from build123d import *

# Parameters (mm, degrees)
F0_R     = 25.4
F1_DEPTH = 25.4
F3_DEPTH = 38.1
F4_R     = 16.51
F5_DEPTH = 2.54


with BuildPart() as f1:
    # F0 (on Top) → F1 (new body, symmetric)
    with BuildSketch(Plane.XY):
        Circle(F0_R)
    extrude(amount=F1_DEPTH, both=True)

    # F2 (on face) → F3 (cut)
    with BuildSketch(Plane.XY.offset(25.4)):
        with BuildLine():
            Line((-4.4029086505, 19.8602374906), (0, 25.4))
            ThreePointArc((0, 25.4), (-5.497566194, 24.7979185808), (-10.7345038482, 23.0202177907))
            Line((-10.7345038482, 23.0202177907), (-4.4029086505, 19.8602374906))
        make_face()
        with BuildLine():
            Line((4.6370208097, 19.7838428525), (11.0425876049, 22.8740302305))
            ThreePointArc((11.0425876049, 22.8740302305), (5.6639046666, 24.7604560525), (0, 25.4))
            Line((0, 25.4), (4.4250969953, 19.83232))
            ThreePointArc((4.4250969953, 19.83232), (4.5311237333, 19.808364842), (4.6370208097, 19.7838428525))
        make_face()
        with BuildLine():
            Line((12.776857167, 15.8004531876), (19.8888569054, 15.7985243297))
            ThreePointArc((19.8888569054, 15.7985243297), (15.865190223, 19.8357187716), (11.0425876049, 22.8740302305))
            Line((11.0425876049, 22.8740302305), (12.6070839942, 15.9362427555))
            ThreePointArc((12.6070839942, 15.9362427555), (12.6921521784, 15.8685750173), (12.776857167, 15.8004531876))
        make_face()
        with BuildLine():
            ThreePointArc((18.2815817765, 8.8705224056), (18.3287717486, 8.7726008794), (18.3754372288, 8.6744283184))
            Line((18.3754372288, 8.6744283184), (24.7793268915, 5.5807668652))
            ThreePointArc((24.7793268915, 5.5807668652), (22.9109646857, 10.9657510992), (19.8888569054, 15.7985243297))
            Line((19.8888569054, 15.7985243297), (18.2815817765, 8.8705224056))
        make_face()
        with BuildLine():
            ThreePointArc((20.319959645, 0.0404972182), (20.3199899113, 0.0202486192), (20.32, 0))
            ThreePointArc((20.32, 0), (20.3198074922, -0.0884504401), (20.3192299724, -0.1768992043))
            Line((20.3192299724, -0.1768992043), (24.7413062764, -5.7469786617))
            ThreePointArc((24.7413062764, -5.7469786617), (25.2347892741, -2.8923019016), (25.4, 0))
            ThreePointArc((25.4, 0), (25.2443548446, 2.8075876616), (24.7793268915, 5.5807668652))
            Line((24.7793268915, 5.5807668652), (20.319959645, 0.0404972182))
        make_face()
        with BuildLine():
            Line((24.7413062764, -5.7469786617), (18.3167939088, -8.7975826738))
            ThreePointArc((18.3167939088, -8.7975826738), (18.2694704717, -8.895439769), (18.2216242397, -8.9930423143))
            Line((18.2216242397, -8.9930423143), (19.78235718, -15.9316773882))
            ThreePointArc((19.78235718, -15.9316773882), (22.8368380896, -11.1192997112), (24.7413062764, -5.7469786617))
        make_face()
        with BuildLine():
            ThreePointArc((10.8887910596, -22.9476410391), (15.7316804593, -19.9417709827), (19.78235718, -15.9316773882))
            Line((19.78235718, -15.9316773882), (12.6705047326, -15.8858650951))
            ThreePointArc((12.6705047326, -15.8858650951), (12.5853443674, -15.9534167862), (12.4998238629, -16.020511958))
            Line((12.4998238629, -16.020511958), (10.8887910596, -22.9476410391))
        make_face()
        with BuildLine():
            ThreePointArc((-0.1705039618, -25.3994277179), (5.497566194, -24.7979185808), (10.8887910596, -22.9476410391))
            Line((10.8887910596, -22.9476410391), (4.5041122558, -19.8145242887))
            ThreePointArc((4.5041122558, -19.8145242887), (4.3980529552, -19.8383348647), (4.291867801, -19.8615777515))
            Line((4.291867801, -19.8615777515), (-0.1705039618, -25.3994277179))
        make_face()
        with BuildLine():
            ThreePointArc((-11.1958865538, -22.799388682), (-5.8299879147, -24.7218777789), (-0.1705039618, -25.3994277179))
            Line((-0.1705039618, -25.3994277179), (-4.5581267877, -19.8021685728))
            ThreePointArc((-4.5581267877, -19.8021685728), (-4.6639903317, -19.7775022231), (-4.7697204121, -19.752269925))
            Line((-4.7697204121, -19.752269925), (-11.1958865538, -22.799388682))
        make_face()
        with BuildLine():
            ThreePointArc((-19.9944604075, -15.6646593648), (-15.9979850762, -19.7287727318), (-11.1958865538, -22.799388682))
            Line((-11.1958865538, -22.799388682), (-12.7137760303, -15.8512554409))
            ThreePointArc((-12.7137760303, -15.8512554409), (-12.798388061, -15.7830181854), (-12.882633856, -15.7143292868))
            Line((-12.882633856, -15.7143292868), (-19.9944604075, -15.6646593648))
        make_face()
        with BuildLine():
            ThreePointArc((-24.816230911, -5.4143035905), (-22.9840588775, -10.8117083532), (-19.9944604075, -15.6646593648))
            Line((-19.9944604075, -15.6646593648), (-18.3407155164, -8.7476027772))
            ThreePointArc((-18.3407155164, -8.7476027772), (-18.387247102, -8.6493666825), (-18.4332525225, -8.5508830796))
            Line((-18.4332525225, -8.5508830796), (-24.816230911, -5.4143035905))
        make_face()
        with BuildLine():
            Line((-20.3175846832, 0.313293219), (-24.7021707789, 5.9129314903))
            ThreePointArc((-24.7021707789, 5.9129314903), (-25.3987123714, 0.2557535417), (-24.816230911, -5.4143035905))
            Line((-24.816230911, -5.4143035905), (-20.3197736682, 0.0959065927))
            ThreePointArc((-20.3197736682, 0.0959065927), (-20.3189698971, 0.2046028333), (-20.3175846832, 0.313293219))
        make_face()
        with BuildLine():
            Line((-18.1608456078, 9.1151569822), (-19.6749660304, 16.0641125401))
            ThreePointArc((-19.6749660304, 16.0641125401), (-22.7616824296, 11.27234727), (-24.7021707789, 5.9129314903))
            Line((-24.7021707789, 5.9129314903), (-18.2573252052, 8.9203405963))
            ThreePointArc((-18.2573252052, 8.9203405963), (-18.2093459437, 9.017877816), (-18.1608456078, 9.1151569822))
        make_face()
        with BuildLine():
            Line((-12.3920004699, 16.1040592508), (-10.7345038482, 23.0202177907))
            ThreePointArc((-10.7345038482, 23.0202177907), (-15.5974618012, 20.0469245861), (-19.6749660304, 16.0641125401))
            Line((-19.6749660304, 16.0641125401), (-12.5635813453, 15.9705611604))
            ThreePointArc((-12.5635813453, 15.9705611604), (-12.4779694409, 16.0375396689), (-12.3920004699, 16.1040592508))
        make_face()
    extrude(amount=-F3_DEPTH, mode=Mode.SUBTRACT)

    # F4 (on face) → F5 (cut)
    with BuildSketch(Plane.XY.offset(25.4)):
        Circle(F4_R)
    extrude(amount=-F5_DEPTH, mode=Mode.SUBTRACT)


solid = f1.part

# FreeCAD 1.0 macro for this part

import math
import FreeCAD as App
import Part
import Sketcher
Q = App.Units.Quantity

doc = App.newDocument("Part")
params = doc.addObject("Spreadsheet::Sheet", "Params")
for row, (alias, value) in enumerate([
    ("sketch1_diameter", "2 in"),
    ("pad1_length", "2 in"),
    ("sketch2_radius", "1 in"),
    ("sketch2_radius2", "0.8000001 in"),
    ("sketch2_radius3", "0.7999999 in"),
    ("sketch2_length", "0.28 in"),
    ("pocket1_length", "1.5 in"),
    ("sketch3_diameter", "1.3 in"),
    ("pocket2_length", "0.1 in"),
], start=1):
    params.set(f"A{row}", alias)
    params.set(f"B{row}", "=" + value)
    params.setAlias(f"B{row}", alias)

body = doc.addObject("PartDesign::Body", "Body")

# Sketch on XY plane
sketch1 = doc.addObject("Sketcher::SketchObject", "Sketch")
body.addObject(sketch1)
sketch1.AttachmentSupport = (doc.XY_Plane, [""])
sketch1.MapMode = "FlatFace"
sketch1.addGeometry(Part.Circle(App.Vector(0, 0, 0), App.Vector(0, 0, 1), 25), False)
sketch1.addConstraint([
    Sketcher.Constraint("Coincident", 0, 3, -1, 1),
    Sketcher.Constraint("Diameter", 0, Q("2 in")),
])
sketch1.setExpression("Constraints[1]", "Params.sketch1_diameter")
pad1 = doc.addObject("PartDesign::Pad", "Pad")
body.addObject(pad1)
pad1.Profile = sketch1
pad1.setExpression("Length", "Params.pad1_length")
pad1.Midplane = True

# Sketch on XY plane
sketch2 = doc.addObject("Sketcher::SketchObject", "Sketch001")
body.addObject(sketch2)
sketch2.AttachmentSupport = (doc.XY_Plane, [""])
sketch2.MapMode = "FlatFace"
sketch2.AttachmentOffset = App.Placement(App.Vector(0, 0, 1 * 25.4), App.Rotation())
sketch2.addGeometry([
    Part.LineSegment(App.Vector(-4.403, 19.86, 0), App.Vector(0, 25.4, 0)),  # 0
    Part.ArcOfCircle(Part.Circle(App.Vector(0, 0, 0), App.Vector(0, 0, 1), 25.4), math.radians(90), math.radians(115)),  # 1
    Part.LineSegment(App.Vector(-10.735, 23.02, 0), App.Vector(-4.403, 19.86, 0)),  # 2
    Part.LineSegment(App.Vector(4.637, 19.784, 0), App.Vector(11.043, 22.874, 0)),  # 3
    Part.ArcOfCircle(Part.Circle(App.Vector(0, 0, 0), App.Vector(0, 0, 1), 25.4), math.radians(64), math.radians(90)),  # 4
    Part.LineSegment(App.Vector(0, 25.4, 0), App.Vector(4.425, 19.832, 0)),  # 5
    Part.ArcOfCircle(Part.Circle(App.Vector(0, 0, 0), App.Vector(0, 0, 1), 20.32), math.radians(76.81), math.radians(77.42)),  # 6
    Part.LineSegment(App.Vector(12.777, 15.8, 0), App.Vector(19.889, 15.799, 0)),  # 7
    Part.ArcOfCircle(Part.Circle(App.Vector(0, 0, 0), App.Vector(0, 0, 1), 25.4), math.radians(38), math.radians(64)),  # 8
    Part.LineSegment(App.Vector(11.043, 22.874, 0), App.Vector(12.607, 15.936, 0)),  # 9
    Part.ArcOfCircle(Part.Circle(App.Vector(0, 0, 0), App.Vector(0, 0, 1), 20.32), math.radians(51.04), math.radians(51.65)),  # 10
    Part.ArcOfCircle(Part.Circle(App.Vector(0, 0, 0), App.Vector(0, 0, 1), 20.32), math.radians(25.27), math.radians(25.88)),  # 11
    Part.LineSegment(App.Vector(18.375, 8.674, 0), App.Vector(24.779, 5.581, 0)),  # 12
    Part.ArcOfCircle(Part.Circle(App.Vector(0, 0, 0), App.Vector(0, 0, 1), 25.4), math.radians(13), math.radians(38)),  # 13
    Part.LineSegment(App.Vector(19.889, 15.799, 0), App.Vector(18.282, 8.871, 0)),  # 14
    Part.ArcOfCircle(Part.Circle(App.Vector(0, 0, 0), App.Vector(0, 0, 1), 20.32), math.radians(0), math.radians(0.11)),  # 15
    Part.ArcOfCircle(Part.Circle(App.Vector(0, 0, 0), App.Vector(0, 0, 1), 20.32), math.radians(-0.5), math.radians(0)),  # 16
    Part.LineSegment(App.Vector(20.319, -0.177, 0), App.Vector(24.741, -5.747, 0)),  # 17
    Part.ArcOfCircle(Part.Circle(App.Vector(0, 0, 0), App.Vector(0, 0, 1), 25.4), math.radians(-13.08), math.radians(0)),  # 18
    Part.ArcOfCircle(Part.Circle(App.Vector(0, 0, 0), App.Vector(0, 0, 1), 25.4), math.radians(0), math.radians(12.69)),  # 19
    Part.LineSegment(App.Vector(24.779, 5.581, 0), App.Vector(20.32, 0.04, 0)),  # 20
    Part.LineSegment(App.Vector(24.741, -5.747, 0), App.Vector(18.317, -8.798, 0)),  # 21
    Part.ArcOfCircle(Part.Circle(App.Vector(0, 0, 0), App.Vector(0, 0, 1), 20.32), math.radians(-26.27), math.radians(-25.66)),  # 22
    Part.LineSegment(App.Vector(18.222, -8.993, 0), App.Vector(19.782, -15.932, 0)),  # 23
    Part.ArcOfCircle(Part.Circle(App.Vector(0, 0, 0), App.Vector(0, 0, 1), 25.4), math.radians(-39), math.radians(-13)),  # 24
    Part.ArcOfCircle(Part.Circle(App.Vector(0, 0, 0), App.Vector(0, 0, 1), 25.4), math.radians(-65), math.radians(-39)),  # 25
    Part.LineSegment(App.Vector(19.782, -15.932, 0), App.Vector(12.671, -15.886, 0)),  # 26
    Part.ArcOfCircle(Part.Circle(App.Vector(0, 0, 0), App.Vector(0, 0, 1), 20.32), math.radians(-52.04), math.radians(-51.42)),  # 27
    Part.LineSegment(App.Vector(12.5, -16.021, 0), App.Vector(10.889, -22.948, 0)),  # 28
    Part.ArcOfCircle(Part.Circle(App.Vector(0, 0, 0), App.Vector(0, 0, 1), 25.4), math.radians(-90), math.radians(-65)),  # 29
    Part.LineSegment(App.Vector(10.889, -22.948, 0), App.Vector(4.504, -19.815, 0)),  # 30
    Part.ArcOfCircle(Part.Circle(App.Vector(0, 0, 0), App.Vector(0, 0, 1), 20.32), math.radians(-77.81), math.radians(-77.19)),  # 31
    Part.LineSegment(App.Vector(4.292, -19.862, 0), App.Vector(-0.171, -25.399, 0)),  # 32
    Part.ArcOfCircle(Part.Circle(App.Vector(0, 0, 0), App.Vector(0, 0, 1), 25.4), math.radians(-116), math.radians(-90)),  # 33
    Part.LineSegment(App.Vector(-0.171, -25.399, 0), App.Vector(-4.558, -19.802, 0)),  # 34
    Part.ArcOfCircle(Part.Circle(App.Vector(0, 0, 0), App.Vector(0, 0, 1), 20.32), math.radians(-103.58), math.radians(-102.96)),  # 35
    Part.LineSegment(App.Vector(-4.77, -19.752, 0), App.Vector(-11.196, -22.799, 0)),  # 36
    Part.ArcOfCircle(Part.Circle(App.Vector(0, 0, 0), App.Vector(0, 0, 1), 25.4), math.radians(-142), math.radians(-116)),  # 37
    Part.LineSegment(App.Vector(-11.196, -22.799, 0), App.Vector(-12.714, -15.851, 0)),  # 38
    Part.ArcOfCircle(Part.Circle(App.Vector(0, 0, 0), App.Vector(0, 0, 1), 20.32), math.radians(-129.34), math.radians(-128.73)),  # 39
    Part.LineSegment(App.Vector(-12.883, -15.714, 0), App.Vector(-19.994, -15.665, 0)),  # 40
    Part.ArcOfCircle(Part.Circle(App.Vector(0, 0, 0), App.Vector(0, 0, 1), 25.4), math.radians(-168), math.radians(-142)),  # 41
    Part.LineSegment(App.Vector(-19.994, -15.665, 0), App.Vector(-18.341, -8.748, 0)),  # 42
    Part.ArcOfCircle(Part.Circle(App.Vector(0, 0, 0), App.Vector(0, 0, 1), 20.32), math.radians(-155.11), math.radians(-154.5)),  # 43
    Part.LineSegment(App.Vector(-18.433, -8.551, 0), App.Vector(-24.816, -5.414, 0)),  # 44
    Part.LineSegment(App.Vector(-20.318, 0.313, 0), App.Vector(-24.702, 5.913, 0)),  # 45
    Part.ArcOfCircle(Part.Circle(App.Vector(0, 0, 0), App.Vector(0, 0, 1), 25.4), math.radians(167), math.radians(192)),  # 46
    Part.LineSegment(App.Vector(-24.816, -5.414, 0), App.Vector(-20.32, 0.096, 0)),  # 47
    Part.ArcOfCircle(Part.Circle(App.Vector(0, 0, 0), App.Vector(0, 0, 1), 20.32), math.radians(179.12), math.radians(179.73)),  # 48
    Part.LineSegment(App.Vector(-18.161, 9.115, 0), App.Vector(-19.675, 16.064, 0)),  # 49
    Part.ArcOfCircle(Part.Circle(App.Vector(0, 0, 0), App.Vector(0, 0, 1), 25.4), math.radians(141), math.radians(167)),  # 50
    Part.LineSegment(App.Vector(-24.702, 5.913, 0), App.Vector(-18.257, 8.92, 0)),  # 51
    Part.ArcOfCircle(Part.Circle(App.Vector(0, 0, 0), App.Vector(0, 0, 1), 20.32), math.radians(153.35), math.radians(153.96)),  # 52
    Part.LineSegment(App.Vector(-12.392, 16.104, 0), App.Vector(-10.735, 23.02, 0)),  # 53
    Part.ArcOfCircle(Part.Circle(App.Vector(0, 0, 0), App.Vector(0, 0, 1), 25.4), math.radians(115), math.radians(141)),  # 54
    Part.LineSegment(App.Vector(-19.675, 16.064, 0), App.Vector(-12.564, 15.971, 0)),  # 55
    Part.ArcOfCircle(Part.Circle(App.Vector(0, 0, 0), App.Vector(0, 0, 1), 20.32), math.radians(127.58), math.radians(128.19)),  # 56
], False)
sketch2.addConstraint([
    Sketcher.Constraint("Coincident", 0, 2, 1, 1),
    Sketcher.Constraint("Coincident", 1, 2, 2, 1),
    Sketcher.Constraint("Coincident", 2, 2, 0, 1),
    Sketcher.Constraint("Coincident", 3, 2, 4, 1),
    Sketcher.Constraint("Coincident", 4, 2, 5, 1),
    Sketcher.Constraint("Coincident", 5, 2, 6, 2),
    Sketcher.Constraint("Coincident", 6, 1, 3, 1),
    Sketcher.Constraint("Coincident", 7, 2, 8, 1),
    Sketcher.Constraint("Coincident", 8, 2, 9, 1),
    Sketcher.Constraint("Coincident", 9, 2, 10, 2),
    Sketcher.Constraint("Coincident", 10, 1, 7, 1),
    Sketcher.Constraint("Coincident", 11, 1, 12, 1),
    Sketcher.Constraint("Coincident", 12, 2, 13, 1),
    Sketcher.Constraint("Coincident", 13, 2, 14, 1),
    Sketcher.Constraint("Coincident", 14, 2, 11, 2),
    Sketcher.Constraint("Tangent", 15, 1, 16, 2),
    Sketcher.Constraint("Coincident", 16, 1, 17, 1),
    Sketcher.Constraint("Coincident", 17, 2, 18, 1),
    Sketcher.Constraint("Tangent", 18, 2, 19, 1),
    Sketcher.Constraint("Coincident", 19, 2, 20, 1),
    Sketcher.Constraint("Coincident", 20, 2, 15, 2),
    Sketcher.Constraint("Coincident", 21, 2, 22, 2),
    Sketcher.Constraint("Coincident", 22, 1, 23, 1),
    Sketcher.Constraint("Coincident", 23, 2, 24, 1),
    Sketcher.Constraint("Coincident", 24, 2, 21, 1),
    Sketcher.Constraint("Coincident", 25, 2, 26, 1),
    Sketcher.Constraint("Coincident", 26, 2, 27, 2),
    Sketcher.Constraint("Coincident", 27, 1, 28, 1),
    Sketcher.Constraint("Coincident", 28, 2, 25, 1),
    Sketcher.Constraint("Coincident", 29, 2, 30, 1),
    Sketcher.Constraint("Coincident", 30, 2, 31, 2),
    Sketcher.Constraint("Coincident", 31, 1, 32, 1),
    Sketcher.Constraint("Coincident", 32, 2, 29, 1),
    Sketcher.Constraint("Coincident", 33, 2, 34, 1),
    Sketcher.Constraint("Coincident", 34, 2, 35, 2),
    Sketcher.Constraint("Coincident", 35, 1, 36, 1),
    Sketcher.Constraint("Coincident", 36, 2, 33, 1),
    Sketcher.Constraint("Coincident", 37, 2, 38, 1),
    Sketcher.Constraint("Coincident", 38, 2, 39, 2),
    Sketcher.Constraint("Coincident", 39, 1, 40, 1),
    Sketcher.Constraint("Coincident", 40, 2, 37, 1),
    Sketcher.Constraint("Coincident", 41, 2, 42, 1),
    Sketcher.Constraint("Coincident", 42, 2, 43, 2),
    Sketcher.Constraint("Coincident", 43, 1, 44, 1),
    Sketcher.Constraint("Coincident", 44, 2, 41, 1),
    Sketcher.Constraint("Coincident", 45, 2, 46, 1),
    Sketcher.Constraint("Coincident", 46, 2, 47, 1),
    Sketcher.Constraint("Coincident", 47, 2, 48, 2),
    Sketcher.Constraint("Coincident", 48, 1, 45, 1),
    Sketcher.Constraint("Coincident", 49, 2, 50, 1),
    Sketcher.Constraint("Coincident", 50, 2, 51, 1),
    Sketcher.Constraint("Coincident", 51, 2, 52, 2),
    Sketcher.Constraint("Coincident", 52, 1, 49, 1),
    Sketcher.Constraint("Coincident", 53, 2, 54, 1),
    Sketcher.Constraint("Coincident", 54, 2, 55, 1),
    Sketcher.Constraint("Coincident", 55, 2, 56, 2),
    Sketcher.Constraint("Coincident", 56, 1, 53, 1),
    Sketcher.Constraint("Coincident", 1, 3, -1, 1),
    Sketcher.Constraint("Coincident", 4, 3, -1, 1),
    Sketcher.Constraint("Coincident", 6, 3, -1, 1),
    Sketcher.Constraint("Coincident", 8, 3, -1, 1),
    Sketcher.Constraint("Coincident", 10, 3, -1, 1),
    Sketcher.Constraint("Coincident", 11, 3, -1, 1),
    Sketcher.Constraint("Coincident", 13, 3, -1, 1),
    Sketcher.Constraint("Coincident", 16, 3, -1, 1),
    Sketcher.Constraint("Coincident", 18, 3, -1, 1),
    Sketcher.Constraint("Coincident", 22, 3, -1, 1),
    Sketcher.Constraint("Coincident", 24, 3, -1, 1),
    Sketcher.Constraint("Coincident", 25, 3, -1, 1),
    Sketcher.Constraint("Coincident", 27, 3, -1, 1),
    Sketcher.Constraint("Coincident", 29, 3, -1, 1),
    Sketcher.Constraint("Coincident", 31, 3, -1, 1),
    Sketcher.Constraint("Coincident", 33, 3, -1, 1),
    Sketcher.Constraint("Coincident", 35, 3, -1, 1),
    Sketcher.Constraint("Coincident", 37, 3, -1, 1),
    Sketcher.Constraint("Coincident", 39, 3, -1, 1),
    Sketcher.Constraint("Coincident", 41, 3, -1, 1),
    Sketcher.Constraint("Coincident", 43, 3, -1, 1),
    Sketcher.Constraint("Coincident", 46, 3, -1, 1),
    Sketcher.Constraint("Coincident", 48, 3, -1, 1),
    Sketcher.Constraint("Coincident", 50, 3, -1, 1),
    Sketcher.Constraint("Coincident", 52, 3, -1, 1),
    Sketcher.Constraint("Coincident", 54, 3, -1, 1),
    Sketcher.Constraint("Coincident", 56, 3, -1, 1),
    Sketcher.Constraint("Coincident", 4, 2, 0, 2),
    Sketcher.Constraint("Coincident", 8, 2, 3, 2),
    Sketcher.Constraint("Coincident", 13, 2, 7, 2),
    Sketcher.Constraint("Coincident", 19, 2, 12, 2),
    Sketcher.Constraint("Coincident", 24, 2, 17, 2),
    Sketcher.Constraint("Coincident", 25, 2, 23, 2),
    Sketcher.Constraint("Coincident", 29, 2, 28, 2),
    Sketcher.Constraint("Coincident", 33, 2, 32, 2),
    Sketcher.Constraint("Coincident", 37, 2, 36, 2),
    Sketcher.Constraint("Coincident", 41, 2, 40, 2),
    Sketcher.Constraint("Coincident", 46, 2, 44, 2),
    Sketcher.Constraint("Coincident", 50, 2, 45, 2),
    Sketcher.Constraint("Coincident", 53, 2, 1, 2),
    Sketcher.Constraint("Equal", 6, 10),
    Sketcher.Constraint("Equal", 11, 16),
    Sketcher.Constraint("Equal", 13, 18),
    Sketcher.Constraint("Equal", 16, 22),
    Sketcher.Constraint("Equal", 22, 27),
    Sketcher.Constraint("Equal", 27, 31),
    Sketcher.Constraint("Equal", 31, 35),
    Sketcher.Constraint("Equal", 35, 39),
    Sketcher.Constraint("Equal", 39, 43),
    Sketcher.Constraint("Equal", 43, 48),
    Sketcher.Constraint("Equal", 39, 52),
    Sketcher.Constraint("Equal", 52, 56),
    Sketcher.Constraint("PointOnObject", 0, 2, -2),
    Sketcher.Constraint("PointOnObject", 15, 1, -1),
    Sketcher.Constraint("PointOnObject", 18, 2, -1),
    Sketcher.Constraint("Equal", 0, 2),
    Sketcher.Constraint("Equal", 3, 5),
    Sketcher.Constraint("Equal", 5, 7),
    Sketcher.Constraint("Equal", 7, 9),
    Sketcher.Constraint("Equal", 9, 12),
    Sketcher.Constraint("Equal", 12, 14),
    Sketcher.Constraint("Equal", 14, 17),
    Sketcher.Constraint("Equal", 17, 20),
    Sketcher.Constraint("Equal", 20, 21),
    Sketcher.Constraint("Equal", 21, 23),
    Sketcher.Constraint("Equal", 23, 26),
    Sketcher.Constraint("Equal", 26, 28),
    Sketcher.Constraint("Equal", 28, 30),
    Sketcher.Constraint("Equal", 30, 32),
    Sketcher.Constraint("Equal", 32, 34),
    Sketcher.Constraint("Equal", 34, 36),
    Sketcher.Constraint("Equal", 36, 38),
    Sketcher.Constraint("Equal", 38, 40),
    Sketcher.Constraint("Equal", 40, 42),
    Sketcher.Constraint("Equal", 42, 44),
    Sketcher.Constraint("Equal", 44, 45),
    Sketcher.Constraint("Equal", 45, 47),
    Sketcher.Constraint("Equal", 47, 49),
    Sketcher.Constraint("Equal", 49, 51),
    Sketcher.Constraint("Equal", 51, 53),
    Sketcher.Constraint("Equal", 53, 55),
    Sketcher.Constraint("Radius", 1, Q("1 in")),
    Sketcher.Constraint("Radius", 6, Q("0.8000001 in")),
    Sketcher.Constraint("Radius", 11, Q("0.7999999 in")),
    Sketcher.Constraint("Distance", 3, Q("0.28 in")),
    Sketcher.Constraint("Radius", 15, 20.319883),
    Sketcher.Constraint("DistanceY", 16, 1, -1, 1, 0.176899),
    Sketcher.Constraint("DistanceX", 56, 1, -1, 1, 12.392),
    Sketcher.Constraint("Distance", 0, 7.076339),
    Sketcher.Constraint("DistanceY", -1, 1, 3, 2, 22.87403),
    Sketcher.Constraint("DistanceY", -1, 1, 11, 1, 8.674428),
    Sketcher.Constraint("DistanceX", -1, 1, 14, 2, 18.281582),
    Sketcher.Constraint("DistanceY", 27, 1, -1, 1, 16.020512),
    Sketcher.Constraint("DistanceY", 34, 2, -1, 1, 19.802169),
    Sketcher.Constraint("DistanceX", 35, 1, -1, 1, 4.76972),
    Sketcher.Constraint("DistanceY", 39, 1, -1, 1, 15.714329),
    Sketcher.Constraint("DistanceX", 44, 2, -1, 1, 24.816231),
    Sketcher.Constraint("DistanceX", 45, 2, -1, 1, 24.702171),
    Sketcher.Constraint("DistanceX", 55, 2, -1, 1, 12.563581),
    Sketcher.Constraint("DistanceX", -1, 1, 22, 1, 18.221624),
    Sketcher.Constraint("DistanceX", 49, 2, -1, 1, 19.674966),
])
sketch2.setExpression("Constraints[138]", "Params.sketch2_radius")
sketch2.setExpression("Constraints[139]", "Params.sketch2_radius2")
sketch2.setExpression("Constraints[140]", "Params.sketch2_radius3")
sketch2.setExpression("Constraints[141]", "Params.sketch2_length")
pocket1 = doc.addObject("PartDesign::Pocket", "Pocket")
body.addObject(pocket1)
pocket1.Profile = sketch2
pocket1.setExpression("Length", "Params.pocket1_length")

# Sketch on XY plane
sketch3 = doc.addObject("Sketcher::SketchObject", "Sketch002")
body.addObject(sketch3)
sketch3.AttachmentSupport = (doc.XY_Plane, [""])
sketch3.MapMode = "FlatFace"
sketch3.AttachmentOffset = App.Placement(App.Vector(0, 0, 1 * 25.4), App.Rotation())
sketch3.addGeometry(Part.Circle(App.Vector(0, 0, 0), App.Vector(0, 0, 1), 17), False)
sketch3.addConstraint([
    Sketcher.Constraint("Coincident", 0, 3, -1, 1),
    Sketcher.Constraint("Diameter", 0, Q("1.3 in")),
])
sketch3.setExpression("Constraints[1]", "Params.sketch3_diameter")
pocket2 = doc.addObject("PartDesign::Pocket", "Pocket001")
body.addObject(pocket2)
pocket2.Profile = sketch3
pocket2.setExpression("Length", "Params.pocket2_length")

doc.recompute()
